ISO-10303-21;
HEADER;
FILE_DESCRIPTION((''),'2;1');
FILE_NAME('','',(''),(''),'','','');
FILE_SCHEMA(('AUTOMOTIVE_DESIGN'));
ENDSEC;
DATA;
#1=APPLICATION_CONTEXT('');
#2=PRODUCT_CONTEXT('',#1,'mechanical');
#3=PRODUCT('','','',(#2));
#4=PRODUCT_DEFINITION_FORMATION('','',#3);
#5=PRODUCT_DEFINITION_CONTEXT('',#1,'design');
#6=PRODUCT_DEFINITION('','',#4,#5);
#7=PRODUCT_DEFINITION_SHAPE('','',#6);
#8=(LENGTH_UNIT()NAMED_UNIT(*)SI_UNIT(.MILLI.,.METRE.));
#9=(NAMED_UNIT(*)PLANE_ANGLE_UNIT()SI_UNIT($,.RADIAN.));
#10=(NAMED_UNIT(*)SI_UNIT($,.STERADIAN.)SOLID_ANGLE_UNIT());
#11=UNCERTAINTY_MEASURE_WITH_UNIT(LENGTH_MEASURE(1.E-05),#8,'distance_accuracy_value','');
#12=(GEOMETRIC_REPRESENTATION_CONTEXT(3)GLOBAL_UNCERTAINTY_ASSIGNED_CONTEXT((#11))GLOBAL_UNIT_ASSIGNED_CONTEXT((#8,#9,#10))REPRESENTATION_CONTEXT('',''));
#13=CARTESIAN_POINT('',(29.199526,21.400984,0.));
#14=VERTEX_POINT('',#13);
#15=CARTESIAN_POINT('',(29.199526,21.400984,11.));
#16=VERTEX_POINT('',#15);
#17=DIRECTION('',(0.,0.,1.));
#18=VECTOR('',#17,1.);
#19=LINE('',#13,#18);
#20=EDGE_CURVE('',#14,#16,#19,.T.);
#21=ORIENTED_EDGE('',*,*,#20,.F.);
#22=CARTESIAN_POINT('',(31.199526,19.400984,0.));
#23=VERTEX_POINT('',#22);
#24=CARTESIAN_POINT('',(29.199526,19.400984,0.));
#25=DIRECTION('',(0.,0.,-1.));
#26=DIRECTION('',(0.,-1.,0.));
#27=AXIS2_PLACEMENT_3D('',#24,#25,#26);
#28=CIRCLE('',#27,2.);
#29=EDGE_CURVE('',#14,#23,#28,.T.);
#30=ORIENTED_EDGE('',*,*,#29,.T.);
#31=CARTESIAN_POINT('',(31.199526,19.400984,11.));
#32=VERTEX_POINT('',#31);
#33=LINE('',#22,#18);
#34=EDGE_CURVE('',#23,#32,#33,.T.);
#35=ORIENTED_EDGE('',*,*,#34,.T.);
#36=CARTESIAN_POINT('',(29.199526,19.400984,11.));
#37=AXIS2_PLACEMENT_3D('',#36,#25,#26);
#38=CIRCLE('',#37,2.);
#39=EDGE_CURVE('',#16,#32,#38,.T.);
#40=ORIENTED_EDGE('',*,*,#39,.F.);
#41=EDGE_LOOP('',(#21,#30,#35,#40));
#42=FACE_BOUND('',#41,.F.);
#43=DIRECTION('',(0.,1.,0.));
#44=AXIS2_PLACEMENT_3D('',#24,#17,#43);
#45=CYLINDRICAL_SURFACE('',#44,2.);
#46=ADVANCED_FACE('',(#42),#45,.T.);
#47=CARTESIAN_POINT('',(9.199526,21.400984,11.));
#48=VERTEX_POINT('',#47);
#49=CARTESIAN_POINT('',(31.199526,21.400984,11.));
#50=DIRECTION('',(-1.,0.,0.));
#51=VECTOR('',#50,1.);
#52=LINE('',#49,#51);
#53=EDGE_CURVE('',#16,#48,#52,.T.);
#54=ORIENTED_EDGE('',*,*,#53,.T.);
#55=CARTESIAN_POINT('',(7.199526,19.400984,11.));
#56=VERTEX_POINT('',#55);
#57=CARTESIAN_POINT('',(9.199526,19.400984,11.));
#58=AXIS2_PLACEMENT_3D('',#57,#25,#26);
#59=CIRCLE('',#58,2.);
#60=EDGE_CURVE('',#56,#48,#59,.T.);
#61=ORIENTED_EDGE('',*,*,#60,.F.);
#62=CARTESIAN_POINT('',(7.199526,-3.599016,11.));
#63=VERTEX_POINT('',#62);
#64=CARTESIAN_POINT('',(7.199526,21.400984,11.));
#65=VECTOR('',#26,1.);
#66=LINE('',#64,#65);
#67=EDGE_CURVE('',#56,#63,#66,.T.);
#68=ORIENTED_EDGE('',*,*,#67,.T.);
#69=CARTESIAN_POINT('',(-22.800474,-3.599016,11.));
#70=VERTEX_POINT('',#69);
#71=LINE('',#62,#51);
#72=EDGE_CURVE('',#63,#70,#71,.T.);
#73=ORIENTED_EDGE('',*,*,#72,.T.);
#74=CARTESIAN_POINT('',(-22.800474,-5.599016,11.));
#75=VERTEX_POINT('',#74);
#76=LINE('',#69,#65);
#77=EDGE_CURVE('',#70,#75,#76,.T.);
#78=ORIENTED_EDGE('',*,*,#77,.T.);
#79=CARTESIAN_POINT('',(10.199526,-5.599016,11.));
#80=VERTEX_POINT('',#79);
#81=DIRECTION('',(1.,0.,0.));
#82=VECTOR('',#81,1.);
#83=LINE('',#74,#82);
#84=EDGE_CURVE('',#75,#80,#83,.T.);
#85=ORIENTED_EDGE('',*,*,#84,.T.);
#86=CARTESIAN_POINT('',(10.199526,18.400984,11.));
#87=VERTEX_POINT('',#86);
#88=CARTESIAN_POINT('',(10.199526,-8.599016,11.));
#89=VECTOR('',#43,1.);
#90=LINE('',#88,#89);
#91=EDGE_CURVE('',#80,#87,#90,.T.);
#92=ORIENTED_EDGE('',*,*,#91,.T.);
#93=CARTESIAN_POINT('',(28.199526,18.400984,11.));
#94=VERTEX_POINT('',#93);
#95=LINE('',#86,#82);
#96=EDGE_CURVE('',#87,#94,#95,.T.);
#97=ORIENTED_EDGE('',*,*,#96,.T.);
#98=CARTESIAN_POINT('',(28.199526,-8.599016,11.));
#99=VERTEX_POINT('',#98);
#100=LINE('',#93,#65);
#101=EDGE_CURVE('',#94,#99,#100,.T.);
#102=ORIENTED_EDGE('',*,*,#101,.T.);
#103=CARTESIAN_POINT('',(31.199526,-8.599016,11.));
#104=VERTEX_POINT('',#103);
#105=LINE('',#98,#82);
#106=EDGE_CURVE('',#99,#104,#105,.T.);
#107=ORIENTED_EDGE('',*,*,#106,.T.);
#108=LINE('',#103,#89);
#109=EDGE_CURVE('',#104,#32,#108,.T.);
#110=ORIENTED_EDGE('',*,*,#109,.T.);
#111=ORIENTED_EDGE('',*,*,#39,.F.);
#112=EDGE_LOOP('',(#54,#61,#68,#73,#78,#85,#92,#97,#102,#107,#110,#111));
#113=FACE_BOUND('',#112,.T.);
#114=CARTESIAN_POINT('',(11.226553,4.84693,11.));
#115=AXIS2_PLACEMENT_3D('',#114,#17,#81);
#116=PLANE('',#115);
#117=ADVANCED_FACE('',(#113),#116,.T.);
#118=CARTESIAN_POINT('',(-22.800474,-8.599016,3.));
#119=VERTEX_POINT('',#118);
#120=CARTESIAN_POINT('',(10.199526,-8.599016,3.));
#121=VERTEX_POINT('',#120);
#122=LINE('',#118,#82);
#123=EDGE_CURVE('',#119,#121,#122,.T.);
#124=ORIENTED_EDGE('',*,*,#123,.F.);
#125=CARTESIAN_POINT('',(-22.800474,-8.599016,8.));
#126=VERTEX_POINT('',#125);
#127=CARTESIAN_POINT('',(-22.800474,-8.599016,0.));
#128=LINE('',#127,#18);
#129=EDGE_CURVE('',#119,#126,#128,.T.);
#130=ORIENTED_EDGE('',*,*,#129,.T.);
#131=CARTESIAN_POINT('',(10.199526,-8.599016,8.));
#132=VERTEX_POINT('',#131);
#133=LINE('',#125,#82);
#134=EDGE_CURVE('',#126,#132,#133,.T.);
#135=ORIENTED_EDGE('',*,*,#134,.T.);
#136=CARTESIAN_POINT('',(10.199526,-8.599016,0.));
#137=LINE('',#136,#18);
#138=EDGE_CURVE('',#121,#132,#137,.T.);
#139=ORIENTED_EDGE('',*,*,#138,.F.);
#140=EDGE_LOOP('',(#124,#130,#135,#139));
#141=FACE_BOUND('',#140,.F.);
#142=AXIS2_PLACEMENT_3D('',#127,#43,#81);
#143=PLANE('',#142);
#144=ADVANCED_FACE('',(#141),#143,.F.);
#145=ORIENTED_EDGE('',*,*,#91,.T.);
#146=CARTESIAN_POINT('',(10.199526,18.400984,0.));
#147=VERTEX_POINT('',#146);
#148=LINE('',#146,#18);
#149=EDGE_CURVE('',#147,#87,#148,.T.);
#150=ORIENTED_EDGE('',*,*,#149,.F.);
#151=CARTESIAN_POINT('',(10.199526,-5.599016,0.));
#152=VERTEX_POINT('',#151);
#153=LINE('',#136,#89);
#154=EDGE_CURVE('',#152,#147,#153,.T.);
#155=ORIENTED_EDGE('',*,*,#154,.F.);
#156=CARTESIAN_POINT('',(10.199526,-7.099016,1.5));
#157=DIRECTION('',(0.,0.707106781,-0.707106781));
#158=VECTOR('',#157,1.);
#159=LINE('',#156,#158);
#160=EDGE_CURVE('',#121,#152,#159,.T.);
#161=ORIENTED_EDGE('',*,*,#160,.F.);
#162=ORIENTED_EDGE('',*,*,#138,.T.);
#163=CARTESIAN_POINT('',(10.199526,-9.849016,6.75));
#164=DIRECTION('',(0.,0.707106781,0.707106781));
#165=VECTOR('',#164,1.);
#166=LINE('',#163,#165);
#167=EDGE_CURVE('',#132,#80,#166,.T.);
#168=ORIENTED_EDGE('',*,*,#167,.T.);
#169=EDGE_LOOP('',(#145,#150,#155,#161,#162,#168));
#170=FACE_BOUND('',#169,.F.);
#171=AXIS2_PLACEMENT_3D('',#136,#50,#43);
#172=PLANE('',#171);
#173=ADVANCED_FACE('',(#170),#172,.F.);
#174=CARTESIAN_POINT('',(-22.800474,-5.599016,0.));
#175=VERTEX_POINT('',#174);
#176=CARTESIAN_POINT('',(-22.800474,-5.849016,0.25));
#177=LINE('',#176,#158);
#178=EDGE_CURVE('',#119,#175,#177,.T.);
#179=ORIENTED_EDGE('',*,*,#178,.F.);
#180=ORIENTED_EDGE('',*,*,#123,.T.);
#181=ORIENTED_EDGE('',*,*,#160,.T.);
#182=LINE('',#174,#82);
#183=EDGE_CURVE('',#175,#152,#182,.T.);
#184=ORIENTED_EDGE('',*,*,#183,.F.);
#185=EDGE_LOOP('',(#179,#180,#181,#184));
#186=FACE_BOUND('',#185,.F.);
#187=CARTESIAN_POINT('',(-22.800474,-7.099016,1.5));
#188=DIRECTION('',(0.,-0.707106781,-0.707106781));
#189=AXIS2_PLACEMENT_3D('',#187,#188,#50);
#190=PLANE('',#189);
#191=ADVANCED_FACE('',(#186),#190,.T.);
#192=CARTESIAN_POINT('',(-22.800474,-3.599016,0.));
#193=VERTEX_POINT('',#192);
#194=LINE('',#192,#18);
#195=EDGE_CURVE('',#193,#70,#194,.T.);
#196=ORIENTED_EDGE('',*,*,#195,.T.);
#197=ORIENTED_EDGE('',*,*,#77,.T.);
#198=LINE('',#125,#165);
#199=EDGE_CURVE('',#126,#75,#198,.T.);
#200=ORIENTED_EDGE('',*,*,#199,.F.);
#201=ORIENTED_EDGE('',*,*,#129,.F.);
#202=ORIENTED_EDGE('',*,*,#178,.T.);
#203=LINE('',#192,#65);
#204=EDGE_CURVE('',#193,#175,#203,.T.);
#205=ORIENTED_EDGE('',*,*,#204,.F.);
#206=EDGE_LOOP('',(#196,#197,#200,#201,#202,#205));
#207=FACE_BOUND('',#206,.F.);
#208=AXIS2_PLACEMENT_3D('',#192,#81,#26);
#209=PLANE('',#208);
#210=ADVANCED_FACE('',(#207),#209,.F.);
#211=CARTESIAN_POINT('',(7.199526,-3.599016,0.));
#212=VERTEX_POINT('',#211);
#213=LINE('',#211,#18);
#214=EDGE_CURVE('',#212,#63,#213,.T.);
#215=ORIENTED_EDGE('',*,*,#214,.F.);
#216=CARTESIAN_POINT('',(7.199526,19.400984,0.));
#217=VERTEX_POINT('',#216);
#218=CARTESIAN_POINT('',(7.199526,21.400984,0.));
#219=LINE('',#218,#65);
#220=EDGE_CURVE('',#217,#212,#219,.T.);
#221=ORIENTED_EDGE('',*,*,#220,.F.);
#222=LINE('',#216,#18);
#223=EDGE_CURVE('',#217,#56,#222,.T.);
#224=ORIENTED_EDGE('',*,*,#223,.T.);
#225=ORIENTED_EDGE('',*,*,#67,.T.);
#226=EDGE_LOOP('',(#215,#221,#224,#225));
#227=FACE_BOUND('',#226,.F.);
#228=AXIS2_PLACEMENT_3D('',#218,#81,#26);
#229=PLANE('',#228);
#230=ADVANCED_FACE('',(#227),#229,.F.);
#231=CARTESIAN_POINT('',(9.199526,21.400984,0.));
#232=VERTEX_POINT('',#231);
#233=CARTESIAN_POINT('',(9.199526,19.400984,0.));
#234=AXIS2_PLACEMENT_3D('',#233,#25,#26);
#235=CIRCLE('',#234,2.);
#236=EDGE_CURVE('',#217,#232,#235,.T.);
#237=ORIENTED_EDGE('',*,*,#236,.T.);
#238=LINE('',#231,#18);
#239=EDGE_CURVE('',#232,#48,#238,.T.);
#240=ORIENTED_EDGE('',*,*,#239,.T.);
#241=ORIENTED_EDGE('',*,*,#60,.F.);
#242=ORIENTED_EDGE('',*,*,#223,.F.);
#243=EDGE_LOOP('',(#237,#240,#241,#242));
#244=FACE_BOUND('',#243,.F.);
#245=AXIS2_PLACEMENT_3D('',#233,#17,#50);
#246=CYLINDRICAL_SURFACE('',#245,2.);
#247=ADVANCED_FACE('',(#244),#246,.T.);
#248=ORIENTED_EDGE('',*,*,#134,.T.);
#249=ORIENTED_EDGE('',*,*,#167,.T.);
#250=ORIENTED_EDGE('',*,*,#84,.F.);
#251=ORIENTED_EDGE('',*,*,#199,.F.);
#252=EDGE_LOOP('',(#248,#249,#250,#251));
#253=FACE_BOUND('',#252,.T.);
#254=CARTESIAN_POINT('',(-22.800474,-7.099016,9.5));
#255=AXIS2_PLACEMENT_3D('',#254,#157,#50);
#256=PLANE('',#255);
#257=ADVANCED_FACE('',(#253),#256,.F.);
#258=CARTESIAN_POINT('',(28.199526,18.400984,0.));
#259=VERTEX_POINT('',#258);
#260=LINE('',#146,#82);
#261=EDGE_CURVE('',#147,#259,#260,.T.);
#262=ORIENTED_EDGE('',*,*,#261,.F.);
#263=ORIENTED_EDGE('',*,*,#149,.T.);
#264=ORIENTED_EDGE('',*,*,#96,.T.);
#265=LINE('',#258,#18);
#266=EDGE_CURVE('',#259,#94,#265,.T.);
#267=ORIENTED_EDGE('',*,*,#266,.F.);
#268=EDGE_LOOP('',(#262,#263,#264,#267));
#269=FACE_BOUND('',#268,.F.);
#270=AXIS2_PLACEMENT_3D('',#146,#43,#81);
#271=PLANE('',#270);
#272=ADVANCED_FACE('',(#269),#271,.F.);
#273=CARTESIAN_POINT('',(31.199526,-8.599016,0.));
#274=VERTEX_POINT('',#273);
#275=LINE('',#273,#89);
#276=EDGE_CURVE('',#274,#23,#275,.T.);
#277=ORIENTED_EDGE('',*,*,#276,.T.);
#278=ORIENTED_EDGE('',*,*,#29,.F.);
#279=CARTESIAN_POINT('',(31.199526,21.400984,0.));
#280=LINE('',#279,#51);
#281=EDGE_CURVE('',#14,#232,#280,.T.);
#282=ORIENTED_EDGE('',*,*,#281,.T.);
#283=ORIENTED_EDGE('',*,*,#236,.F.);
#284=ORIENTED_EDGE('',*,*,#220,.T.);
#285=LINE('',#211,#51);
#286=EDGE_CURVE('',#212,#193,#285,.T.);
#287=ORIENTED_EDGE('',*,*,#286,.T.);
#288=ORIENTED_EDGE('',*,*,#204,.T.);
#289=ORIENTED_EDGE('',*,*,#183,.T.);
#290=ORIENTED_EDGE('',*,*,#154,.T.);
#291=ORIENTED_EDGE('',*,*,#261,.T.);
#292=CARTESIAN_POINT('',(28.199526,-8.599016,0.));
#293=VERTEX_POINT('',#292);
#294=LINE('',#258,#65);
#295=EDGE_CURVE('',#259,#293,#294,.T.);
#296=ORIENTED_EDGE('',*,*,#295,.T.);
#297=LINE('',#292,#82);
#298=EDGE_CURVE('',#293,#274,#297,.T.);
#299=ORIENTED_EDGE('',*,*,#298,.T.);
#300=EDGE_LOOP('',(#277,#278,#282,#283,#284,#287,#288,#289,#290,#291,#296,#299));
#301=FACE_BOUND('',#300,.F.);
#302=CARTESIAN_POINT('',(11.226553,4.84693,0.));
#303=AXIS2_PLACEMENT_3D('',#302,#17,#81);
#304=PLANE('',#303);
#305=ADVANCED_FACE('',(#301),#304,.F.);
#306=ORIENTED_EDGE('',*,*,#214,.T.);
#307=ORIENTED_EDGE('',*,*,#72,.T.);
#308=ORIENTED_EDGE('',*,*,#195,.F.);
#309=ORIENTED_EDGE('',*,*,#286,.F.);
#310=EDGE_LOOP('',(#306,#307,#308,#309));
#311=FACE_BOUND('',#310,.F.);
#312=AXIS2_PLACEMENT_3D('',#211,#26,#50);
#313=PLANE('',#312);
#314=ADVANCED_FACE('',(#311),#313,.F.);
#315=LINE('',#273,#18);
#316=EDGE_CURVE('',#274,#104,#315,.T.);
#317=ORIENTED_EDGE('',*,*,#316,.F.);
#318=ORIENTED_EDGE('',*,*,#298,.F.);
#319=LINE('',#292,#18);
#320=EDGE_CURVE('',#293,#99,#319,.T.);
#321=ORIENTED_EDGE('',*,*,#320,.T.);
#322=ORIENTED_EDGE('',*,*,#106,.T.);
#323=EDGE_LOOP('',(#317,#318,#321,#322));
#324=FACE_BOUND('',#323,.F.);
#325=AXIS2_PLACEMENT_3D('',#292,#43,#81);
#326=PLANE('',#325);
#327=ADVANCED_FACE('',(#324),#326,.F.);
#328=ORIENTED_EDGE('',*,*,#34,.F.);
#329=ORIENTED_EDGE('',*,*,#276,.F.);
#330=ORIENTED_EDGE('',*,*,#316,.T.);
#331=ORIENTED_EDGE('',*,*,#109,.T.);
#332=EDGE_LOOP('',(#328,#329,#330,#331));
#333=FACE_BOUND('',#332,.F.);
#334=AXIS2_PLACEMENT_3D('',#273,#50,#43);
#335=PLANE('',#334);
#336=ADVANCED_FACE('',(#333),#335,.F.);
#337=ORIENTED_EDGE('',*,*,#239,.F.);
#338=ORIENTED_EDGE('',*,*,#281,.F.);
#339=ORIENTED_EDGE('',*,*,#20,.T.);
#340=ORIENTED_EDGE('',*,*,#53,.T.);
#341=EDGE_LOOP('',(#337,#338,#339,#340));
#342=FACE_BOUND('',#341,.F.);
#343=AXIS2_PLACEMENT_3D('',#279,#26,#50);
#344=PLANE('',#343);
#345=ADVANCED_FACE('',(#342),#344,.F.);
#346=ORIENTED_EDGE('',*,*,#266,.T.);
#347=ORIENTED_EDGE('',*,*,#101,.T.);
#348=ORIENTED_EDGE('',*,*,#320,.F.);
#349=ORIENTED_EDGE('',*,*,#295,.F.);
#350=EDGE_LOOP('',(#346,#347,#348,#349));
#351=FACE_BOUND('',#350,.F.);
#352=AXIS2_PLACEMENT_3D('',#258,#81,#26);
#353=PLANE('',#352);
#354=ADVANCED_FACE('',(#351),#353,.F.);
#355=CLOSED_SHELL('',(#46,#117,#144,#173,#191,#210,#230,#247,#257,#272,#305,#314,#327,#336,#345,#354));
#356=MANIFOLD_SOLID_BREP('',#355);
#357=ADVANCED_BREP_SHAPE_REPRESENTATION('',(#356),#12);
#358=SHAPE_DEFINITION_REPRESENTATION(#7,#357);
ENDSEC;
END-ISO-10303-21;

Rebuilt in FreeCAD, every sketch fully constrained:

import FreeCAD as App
import Part
import Sketcher
from FreeCAD import Vector


def edges_at(feature, points):
    """Names of the edges that pass closest to the given points."""
    edges = feature.Shape.Edges
    near = lambda p: min(range(len(edges)), key=lambda i: edges[i].distToShape(Part.Vertex(*p))[0])
    return sorted({f"Edge{near(p) + 1}" for p in points})


def add_polygon(sketch, points):
    """Adds a closed chain of lines whose ends are joined by coincident constraints."""
    first, n = sketch.GeometryCount, len(points)
    for a, b in zip(points, points[1:] + points[:1]):
        sketch.addGeometry(Part.LineSegment(App.Vector(*a, 0), App.Vector(*b, 0)), False)
    for i in range(n):
        sketch.addConstraint(Sketcher.Constraint("Coincident", first + i, 2, first + (i + 1) % n, 1))

doc = App.newDocument("Part")
body = doc.addObject("PartDesign::Body", "Body")

# Sketch on XY plane
sketch1 = body.newObject("Sketcher::SketchObject", "Sketch")
sketch1.AttachmentSupport = (doc.getObject("XY_Plane"), [""])
sketch1.MapMode = "FlatFace"
add_polygon(sketch1, [(-22.8, -3.6), (-22.8, -8.6), (10.2, -8.6), (10.2, 18.4), (28.2, 18.4), (28.2, -8.6), (31.2, -8.6), (31.2, 21.4), (7.2, 21.4), (7.2, -3.6)])  # lines 0-9
sketch1.addConstraint(Sketcher.Constraint("Vertical", 0))
sketch1.addConstraint(Sketcher.Constraint("Horizontal", 1))
sketch1.addConstraint(Sketcher.Constraint("Vertical", 2))
sketch1.addConstraint(Sketcher.Constraint("Horizontal", 3))
sketch1.addConstraint(Sketcher.Constraint("Vertical", 4))
sketch1.addConstraint(Sketcher.Constraint("Horizontal", 5))
sketch1.addConstraint(Sketcher.Constraint("Vertical", 6))
sketch1.addConstraint(Sketcher.Constraint("Horizontal", 7))
sketch1.addConstraint(Sketcher.Constraint("Vertical", 8))
sketch1.addConstraint(Sketcher.Constraint("Horizontal", 9))
sketch1.addConstraint(Sketcher.Constraint("Horizontal", 1, 2, 4, 2))
sketch1.addConstraint(Sketcher.Constraint("Equal", 9, 6))
sketch1.addConstraint(Sketcher.Constraint("DistanceX", 1, 1, 1, 2, 33.0))
sketch1.addConstraint(Sketcher.Constraint("DistanceX", 3, 1, 3, 2, 18.0))
sketch1.addConstraint(Sketcher.Constraint("DistanceX", 5, 1, 5, 2, 3.0))
sketch1.addConstraint(Sketcher.Constraint("DistanceX", 7, 2, 7, 1, 24.0))
sketch1.addConstraint(Sketcher.Constraint("DistanceY", 0, 2, 0, 1, 5.0))
sketch1.addConstraint(Sketcher.Constraint("DistanceY", 2, 1, 2, 2, 27.0))
sketch1.addConstraint(Sketcher.Constraint("DistanceX", 0, 2, -1, 1, 22.800474))
sketch1.addConstraint(Sketcher.Constraint("DistanceY", 0, 2, -1, 1, 8.599016))
pad1 = body.newObject("PartDesign::Pad", "Pad")
pad1.Profile = sketch1
pad1.Length = 11
doc.recompute()

chamfer = body.newObject("PartDesign::Chamfer", "Chamfer")
chamfer.Base = (pad1, edges_at(pad1, [(-6.3, -8.599, 0), (-6.3, -8.599, 11)]))
chamfer.Size = 3
doc.recompute()

fillet = body.newObject("PartDesign::Fillet", "Fillet")
fillet.Base = (chamfer, edges_at(chamfer, [(31.2, 21.401, 5.5), (7.2, 21.401, 5.5)]))
fillet.Radius = 2

doc.recompute()
